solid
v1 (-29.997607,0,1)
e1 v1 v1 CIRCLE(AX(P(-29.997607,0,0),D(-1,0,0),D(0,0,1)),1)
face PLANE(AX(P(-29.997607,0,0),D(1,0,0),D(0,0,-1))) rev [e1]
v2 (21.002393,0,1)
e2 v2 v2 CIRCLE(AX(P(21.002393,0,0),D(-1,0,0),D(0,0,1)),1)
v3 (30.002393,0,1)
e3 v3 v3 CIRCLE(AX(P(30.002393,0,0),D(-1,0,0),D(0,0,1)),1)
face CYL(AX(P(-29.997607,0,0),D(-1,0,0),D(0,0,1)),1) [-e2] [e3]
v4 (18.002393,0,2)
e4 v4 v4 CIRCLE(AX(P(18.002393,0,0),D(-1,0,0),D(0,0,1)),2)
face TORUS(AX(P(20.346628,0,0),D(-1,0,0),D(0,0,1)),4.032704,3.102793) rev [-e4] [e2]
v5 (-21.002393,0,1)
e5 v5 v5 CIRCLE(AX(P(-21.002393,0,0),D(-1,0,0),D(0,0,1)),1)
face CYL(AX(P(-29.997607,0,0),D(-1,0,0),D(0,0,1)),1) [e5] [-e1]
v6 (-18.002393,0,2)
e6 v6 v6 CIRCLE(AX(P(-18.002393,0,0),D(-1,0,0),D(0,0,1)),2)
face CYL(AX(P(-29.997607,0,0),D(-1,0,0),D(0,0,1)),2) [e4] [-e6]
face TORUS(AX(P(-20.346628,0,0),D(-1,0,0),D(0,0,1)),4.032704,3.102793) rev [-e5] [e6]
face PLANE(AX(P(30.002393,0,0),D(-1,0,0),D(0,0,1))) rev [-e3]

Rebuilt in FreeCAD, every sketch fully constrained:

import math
import FreeCAD as App
import Part
import Sketcher
Q = App.Units.Quantity

doc = App.newDocument("Part")
body = doc.addObject("PartDesign::Body", "Body")

sketch1 = body.newObject("Sketcher::SketchObject", "Sketch")
sketch1.AttachmentSupport = (doc.getObject("XZ_Plane"), [""])
sketch1.MapMode = "FlatFace"
sketch1.addGeometry([
    Part.LineSegment(App.Vector(-29.997607, 0, 0), App.Vector(30.002393, 0, 0)),
    Part.LineSegment(App.Vector(30.002393, 0, 0), App.Vector(30.002393, -1, 0)),
    Part.LineSegment(App.Vector(30.002393, -1, 0), App.Vector(21.002393, -1, 0)),
    Part.ArcOfCircle(Part.Circle(App.Vector(20.346628, -4.032704, 0), App.Vector(0, 0, 1), 3.102793), math.radians(77.798714), math.radians(139.071184)),
    Part.LineSegment(App.Vector(18.002393, -2, 0), App.Vector(-18.002393, -2, 0)),
    Part.ArcOfCircle(Part.Circle(App.Vector(-20.346628, -4.032704, 0), App.Vector(0, 0, 1), 3.102793), math.radians(40.928816), math.radians(102.201286)),
    Part.LineSegment(App.Vector(-21.002393, -1, 0), App.Vector(-29.997607, -1, 0)),
    Part.LineSegment(App.Vector(-29.997607, -1, 0), App.Vector(-29.997607, 0, 0)),
], False)
sketch1.addConstraint([
    Sketcher.Constraint("Coincident", 0, 2, 1, 1),
    Sketcher.Constraint("Coincident", 1, 2, 2, 1),
    Sketcher.Constraint("Coincident", 2, 2, 3, 1),
    Sketcher.Constraint("Coincident", 3, 2, 4, 1),
    Sketcher.Constraint("Coincident", 4, 2, 5, 1),
    Sketcher.Constraint("Coincident", 5, 2, 6, 1),
    Sketcher.Constraint("Coincident", 6, 2, 7, 1),
    Sketcher.Constraint("Coincident", 7, 2, 0, 1),
    Sketcher.Constraint("Horizontal", 0),
    Sketcher.Constraint("Vertical", 1),
    Sketcher.Constraint("Horizontal", 2),
    Sketcher.Constraint("Horizontal", 4),
    Sketcher.Constraint("Horizontal", 6),
    Sketcher.Constraint("Vertical", 7),
    Sketcher.Constraint("Equal", 3, 5),
    Sketcher.Constraint("Symmetric", 3, 3, 5, 3, -2),
    Sketcher.Constraint("PointOnObject", 0, 2, -1),
    Sketcher.Constraint("Horizontal", 2, 2, 5, 2),
    Sketcher.Constraint("DistanceX", 0, 1, 0, 2, Q("60 mm")),
    Sketcher.Constraint("DistanceX", 2, 2, 2, 1, Q("9 mm")),
    Sketcher.Constraint("DistanceY", 1, 2, 1, 1, Q("1 mm")),
    Sketcher.Constraint("DistanceY", 3, 2, -1, 1, Q("2 mm")),
    Sketcher.Constraint("DistanceX", 3, 2, 2, 2, Q("3 mm")),
    Sketcher.Constraint("Radius", 3, Q("3.102793 mm")),
    Sketcher.Constraint("DistanceX", 4, 2, 4, 1, Q("36.004785 mm")),
])
revolution = body.newObject("PartDesign::Revolution", "Revolution")
revolution.Profile = sketch1
revolution.ReferenceAxis = (sketch1, ["H_Axis"])
revolution.Angle = 360

doc.recompute()
